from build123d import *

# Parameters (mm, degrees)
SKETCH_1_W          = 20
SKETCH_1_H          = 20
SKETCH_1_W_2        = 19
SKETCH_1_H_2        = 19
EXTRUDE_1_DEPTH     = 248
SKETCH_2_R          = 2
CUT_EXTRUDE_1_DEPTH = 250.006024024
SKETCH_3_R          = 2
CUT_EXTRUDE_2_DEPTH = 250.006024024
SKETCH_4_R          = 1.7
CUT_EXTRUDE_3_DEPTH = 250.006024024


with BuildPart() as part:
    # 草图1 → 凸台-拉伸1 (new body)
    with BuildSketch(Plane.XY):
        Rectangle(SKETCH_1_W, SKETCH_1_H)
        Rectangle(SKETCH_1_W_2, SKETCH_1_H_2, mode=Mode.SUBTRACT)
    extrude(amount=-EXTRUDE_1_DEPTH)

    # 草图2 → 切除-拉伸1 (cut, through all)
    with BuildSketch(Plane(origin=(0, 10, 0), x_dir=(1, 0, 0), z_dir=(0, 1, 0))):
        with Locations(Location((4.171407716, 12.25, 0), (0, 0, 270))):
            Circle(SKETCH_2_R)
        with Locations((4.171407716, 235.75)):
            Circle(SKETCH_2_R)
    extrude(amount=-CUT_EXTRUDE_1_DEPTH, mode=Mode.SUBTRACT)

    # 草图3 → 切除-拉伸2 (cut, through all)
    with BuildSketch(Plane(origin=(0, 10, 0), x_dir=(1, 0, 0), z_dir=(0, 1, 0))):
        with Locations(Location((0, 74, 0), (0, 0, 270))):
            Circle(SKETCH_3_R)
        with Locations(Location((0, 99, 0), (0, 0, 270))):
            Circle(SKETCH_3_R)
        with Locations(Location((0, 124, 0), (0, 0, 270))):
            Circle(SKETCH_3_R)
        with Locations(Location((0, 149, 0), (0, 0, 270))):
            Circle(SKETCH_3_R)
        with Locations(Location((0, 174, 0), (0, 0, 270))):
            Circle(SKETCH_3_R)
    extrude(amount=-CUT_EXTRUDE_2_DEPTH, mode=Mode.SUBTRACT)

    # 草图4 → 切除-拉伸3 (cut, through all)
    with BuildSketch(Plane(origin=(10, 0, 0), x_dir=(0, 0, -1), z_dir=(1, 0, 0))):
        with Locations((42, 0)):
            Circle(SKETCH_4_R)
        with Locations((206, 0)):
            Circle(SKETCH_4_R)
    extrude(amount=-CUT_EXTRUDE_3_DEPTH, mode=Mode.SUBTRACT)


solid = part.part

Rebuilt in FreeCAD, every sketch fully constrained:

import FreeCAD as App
import Part
import Sketcher
Q = App.Units.Quantity


def add_polygon(sketch, points):
    """Adds a closed chain of lines whose ends are joined by coincident constraints."""
    first, n = sketch.GeometryCount, len(points)
    for a, b in zip(points, points[1:] + points[:1]):
        sketch.addGeometry(Part.LineSegment(App.Vector(*a, 0), App.Vector(*b, 0)), False)
    for i in range(n):
        sketch.addConstraint(Sketcher.Constraint("Coincident", first + i, 2, first + (i + 1) % n, 1))

doc = App.newDocument("Part")
params = doc.addObject("Spreadsheet::Sheet", "Params")
for row, (alias, value) in enumerate([
    ("sketch1_width", "20 mm"),
    ("sketch1_width2", "19 mm"),
    ("pad1_length", "248 mm"),
    ("sketch2_diameter", "4 mm"),
    ("sketch3_diameter", "4 mm"),
    ("sketch4_diameter", "3.4 mm"),
], start=1):
    params.set(f"A{row}", alias)
    params.set(f"B{row}", "=" + value)
    params.setAlias(f"B{row}", alias)

body = doc.addObject("PartDesign::Body", "Body")

sketch1 = body.newObject("Sketcher::SketchObject", "Sketch")
sketch1.AttachmentSupport = (doc.getObject("XY_Plane"), [""])
sketch1.MapMode = "FlatFace"
add_polygon(sketch1, [(-10, 10), (-10, -10), (10, -10), (10, 10)])
add_polygon(sketch1, [(9.5, -9.5), (-9.5, -9.5), (-9.5, 9.5), (9.5, 9.5)])
sketch1.addConstraint([
    Sketcher.Constraint("Vertical", 0),
    Sketcher.Constraint("Horizontal", 1),
    Sketcher.Constraint("Vertical", 2),
    Sketcher.Constraint("Horizontal", 3),
    Sketcher.Constraint("Horizontal", 4),
    Sketcher.Constraint("Vertical", 5),
    Sketcher.Constraint("Horizontal", 6),
    Sketcher.Constraint("Vertical", 7),
    Sketcher.Constraint("Symmetric", 0, 2, 2, 2, -1, 1),
    Sketcher.Constraint("Symmetric", 4, 2, 6, 2, -1, 1),
    Sketcher.Constraint("Equal", 3, 0),
    Sketcher.Constraint("Equal", 6, 5),
    Sketcher.Constraint("DistanceX", 1, 1, 1, 2, Q("20 mm")),
    Sketcher.Constraint("DistanceX", 4, 2, 4, 1, Q("19 mm")),
])
sketch1.setExpression("Constraints[20]", "Params.sketch1_width")
sketch1.setExpression("Constraints[21]", "Params.sketch1_width2")
pad1 = body.newObject("PartDesign::Pad", "Pad")
pad1.Profile = sketch1
pad1.setExpression("Length", "Params.pad1_length")
pad1.Reversed = True

sketch2 = body.newObject("Sketcher::SketchObject", "Sketch001")
sketch2.AttachmentSupport = (doc.getObject("XZ_Plane"), [""])
sketch2.MapMode = "FlatFace"
sketch2.AttachmentOffset = App.Placement(App.Vector(0, 0, -10), App.Rotation())
sketch2.addGeometry([
    Part.Circle(App.Vector(4.171408, -12.25, 0), App.Vector(0, 0, 1), 2),
    Part.Circle(App.Vector(4.171408, -235.75, 0), App.Vector(0, 0, 1), 2),
], False)
sketch2.addConstraint([
    Sketcher.Constraint("Equal", 0, 1),
    Sketcher.Constraint("Vertical", 0, 3, 1, 3),
    Sketcher.Constraint("Diameter", 0, Q("4 mm")),
    Sketcher.Constraint("DistanceY", 1, 3, 0, 3, Q("223.5 mm")),
    Sketcher.Constraint("DistanceY", 0, 3, -1, 1, Q("12.25 mm")),
    Sketcher.Constraint("DistanceX", -1, 1, 0, 3, Q("4.171408 mm")),
])
sketch2.setExpression("Constraints[2]", "Params.sketch2_diameter")
pocket1 = body.newObject("PartDesign::Pocket", "Pocket")
pocket1.Profile = sketch2
pocket1.Type = "ThroughAll"
pocket1.Reversed = True

sketch3 = body.newObject("Sketcher::SketchObject", "Sketch002")
sketch3.AttachmentSupport = (doc.getObject("XZ_Plane"), [""])
sketch3.MapMode = "FlatFace"
sketch3.AttachmentOffset = App.Placement(App.Vector(0, 0, -10), App.Rotation())
sketch3.addGeometry([
    Part.Circle(App.Vector(0, -74, 0), App.Vector(0, 0, 1), 2),
    Part.Circle(App.Vector(0, -99, 0), App.Vector(0, 0, 1), 2),
    Part.Circle(App.Vector(0, -124, 0), App.Vector(0, 0, 1), 2),
    Part.Circle(App.Vector(0, -149, 0), App.Vector(0, 0, 1), 2),
    Part.Circle(App.Vector(0, -174, 0), App.Vector(0, 0, 1), 2),
], False)
sketch3.addConstraint([
    Sketcher.Constraint("Equal", 0, 1),
    Sketcher.Constraint("Equal", 1, 2),
    Sketcher.Constraint("Equal", 2, 3),
    Sketcher.Constraint("Equal", 3, 4),
    Sketcher.Constraint("PointOnObject", 0, 3, -2),
    Sketcher.Constraint("PointOnObject", 1, 3, -2),
    Sketcher.Constraint("PointOnObject", 2, 3, -2),
    Sketcher.Constraint("PointOnObject", 3, 3, -2),
    Sketcher.Constraint("PointOnObject", 4, 3, -2),
    Sketcher.Constraint("Diameter", 0, Q("4 mm")),
    Sketcher.Constraint("DistanceY", 0, 3, -1, 1, Q("74 mm")),
    Sketcher.Constraint("DistanceY", 1, 3, -1, 1, Q("99 mm")),
    Sketcher.Constraint("DistanceY", 2, 3, -1, 1, Q("124 mm")),
    Sketcher.Constraint("DistanceY", 3, 3, -1, 1, Q("149 mm")),
    Sketcher.Constraint("DistanceY", 4, 3, -1, 1, Q("174 mm")),
])
sketch3.setExpression("Constraints[9]", "Params.sketch3_diameter")
pocket2 = body.newObject("PartDesign::Pocket", "Pocket001")
pocket2.Profile = sketch3
pocket2.Type = "ThroughAll"
pocket2.Reversed = True

sketch4 = body.newObject("Sketcher::SketchObject", "Sketch003")
sketch4.AttachmentSupport = (doc.getObject("YZ_Plane"), [""])
sketch4.MapMode = "FlatFace"
sketch4.AttachmentOffset = App.Placement(App.Vector(0, 0, 10), App.Rotation())
sketch4.addGeometry([
    Part.Circle(App.Vector(0, -42, 0), App.Vector(0, 0, 1), 1.7),
    Part.Circle(App.Vector(0, -206, 0), App.Vector(0, 0, 1), 1.7),
], False)
sketch4.addConstraint([
    Sketcher.Constraint("Equal", 0, 1),
    Sketcher.Constraint("PointOnObject", 0, 3, -2),
    Sketcher.Constraint("PointOnObject", 1, 3, -2),
    Sketcher.Constraint("Diameter", 0, Q("3.4 mm")),
    Sketcher.Constraint("DistanceY", 0, 3, -1, 1, Q("42 mm")),
    Sketcher.Constraint("DistanceY", 1, 3, -1, 1, Q("206 mm")),
])
sketch4.setExpression("Constraints[3]", "Params.sketch4_diameter")
pocket3 = body.newObject("PartDesign::Pocket", "Pocket002")
pocket3.Profile = sketch4
pocket3.Type = "ThroughAll"

doc.recompute()
